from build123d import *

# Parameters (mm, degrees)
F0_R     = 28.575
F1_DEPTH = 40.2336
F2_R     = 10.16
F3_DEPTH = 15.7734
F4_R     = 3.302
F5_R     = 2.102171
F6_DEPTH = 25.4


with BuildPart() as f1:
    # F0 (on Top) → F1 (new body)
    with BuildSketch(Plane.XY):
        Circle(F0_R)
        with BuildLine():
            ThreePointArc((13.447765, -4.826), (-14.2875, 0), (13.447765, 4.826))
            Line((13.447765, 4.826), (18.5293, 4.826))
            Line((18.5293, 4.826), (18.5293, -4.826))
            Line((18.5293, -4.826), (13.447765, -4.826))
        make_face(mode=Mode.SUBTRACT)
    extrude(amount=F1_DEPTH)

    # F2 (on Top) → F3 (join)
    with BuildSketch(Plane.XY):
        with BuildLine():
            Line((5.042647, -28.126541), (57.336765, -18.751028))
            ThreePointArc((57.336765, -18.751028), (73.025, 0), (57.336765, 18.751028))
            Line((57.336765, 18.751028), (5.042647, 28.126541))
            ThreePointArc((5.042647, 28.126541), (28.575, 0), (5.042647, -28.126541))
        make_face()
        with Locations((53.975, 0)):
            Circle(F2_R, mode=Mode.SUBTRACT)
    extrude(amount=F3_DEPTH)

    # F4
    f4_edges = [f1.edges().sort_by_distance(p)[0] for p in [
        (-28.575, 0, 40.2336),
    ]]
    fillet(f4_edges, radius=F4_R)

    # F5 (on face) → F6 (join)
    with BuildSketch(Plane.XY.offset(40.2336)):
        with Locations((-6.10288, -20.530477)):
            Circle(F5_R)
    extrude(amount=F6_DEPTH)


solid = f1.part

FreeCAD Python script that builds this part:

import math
import FreeCAD as App
import Part
import Sketcher
Q = App.Units.Quantity


def edges_at(feature, points):
    """Names of the edges that pass closest to the given points."""
    edges = feature.Shape.Edges
    near = lambda p: min(range(len(edges)), key=lambda i: edges[i].distToShape(Part.Vertex(*p))[0])
    return sorted({f"Edge{near(p) + 1}" for p in points})

doc = App.newDocument("Part")
body = doc.addObject("PartDesign::Body", "Body")

# Sketch on XY plane
sketch1 = doc.addObject("Sketcher::SketchObject", "Sketch")
body.addObject(sketch1)
sketch1.AttachmentSupport = (doc.XY_Plane, [""])
sketch1.MapMode = "FlatFace"
sketch1.addGeometry(Part.Circle(App.Vector(0, 0, 0), App.Vector(0, 0, 1), 28.575), False)
sketch1.addGeometry(Part.LineSegment(App.Vector(18.5293, -4.826, 0), App.Vector(13.447765, -4.826, 0)), False)
sketch1.addGeometry(Part.ArcOfCircle(Part.Circle(App.Vector(0, 0, 0), App.Vector(0, 0, 1), 14.2875), math.radians(19.741542), math.radians(340.258458)), False)
sketch1.addGeometry(Part.LineSegment(App.Vector(13.447765, 4.826, 0), App.Vector(18.5293, 4.826, 0)), False)
sketch1.addGeometry(Part.LineSegment(App.Vector(18.5293, 4.826, 0), App.Vector(18.5293, -4.826, 0)), False)
sketch1.addConstraint(Sketcher.Constraint("Coincident", 1, 2, 2, 2))
sketch1.addConstraint(Sketcher.Constraint("Coincident", 2, 1, 3, 1))
sketch1.addConstraint(Sketcher.Constraint("Coincident", 3, 2, 4, 1))
sketch1.addConstraint(Sketcher.Constraint("Coincident", 4, 2, 1, 1))
sketch1.addConstraint(Sketcher.Constraint("Horizontal", 1))
sketch1.addConstraint(Sketcher.Constraint("Horizontal", 3))
sketch1.addConstraint(Sketcher.Constraint("Vertical", 4))
sketch1.addConstraint(Sketcher.Constraint("Coincident", 0, 3, -1, 1))
sketch1.addConstraint(Sketcher.Constraint("Coincident", 2, 3, -1, 1))
sketch1.addConstraint(Sketcher.Constraint("Vertical", 1, 2, 2, 1))
sketch1.addConstraint(Sketcher.Constraint("Diameter", 0, Q("2.25 in")))
sketch1.addConstraint(Sketcher.Constraint("Radius", 2, Q("0.5625 in")))
sketch1.addConstraint(Sketcher.Constraint("DistanceY", 4, 2, 4, 1, Q("0.38 in")))
sketch1.addConstraint(Sketcher.Constraint("DistanceX", -1, 1, 3, 2, Q("0.7295 in")))
pad1 = doc.addObject("PartDesign::Pad", "Pad")
body.addObject(pad1)
pad1.Profile = sketch1
pad1.Length = Q("1.584 in")

# Sketch on XY plane
sketch2 = doc.addObject("Sketcher::SketchObject", "Sketch001")
body.addObject(sketch2)
sketch2.AttachmentSupport = (doc.XY_Plane, [""])
sketch2.MapMode = "FlatFace"
sketch2.addGeometry(Part.LineSegment(App.Vector(5.042647, -28.126541, 0), App.Vector(57.336765, -18.751028, 0)), False)
sketch2.addGeometry(Part.ArcOfCircle(Part.Circle(App.Vector(53.975, 0, 0), App.Vector(0, 0, 1), 19.05), math.radians(-79.835749), math.radians(79.835749)), False)
sketch2.addGeometry(Part.LineSegment(App.Vector(57.336765, 18.751028, 0), App.Vector(5.042647, 28.126541, 0)), False)
sketch2.addGeometry(Part.ArcOfCircle(Part.Circle(App.Vector(0.000001, 0, 0), App.Vector(0, 0, 1), 28.574999), math.radians(-79.835752), math.radians(79.835752)), False)
sketch2.addGeometry(Part.Circle(App.Vector(53.975, 0, 0), App.Vector(0, 0, 1), 10.16), False)
sketch2.addConstraint(Sketcher.Constraint("Tangent", 0, 2, 1, 1))
sketch2.addConstraint(Sketcher.Constraint("Tangent", 1, 2, 2, 1))
sketch2.addConstraint(Sketcher.Constraint("Tangent", 2, 2, 3, 2))
sketch2.addConstraint(Sketcher.Constraint("Tangent", 3, 1, 0, 1))
sketch2.addConstraint(Sketcher.Constraint("Coincident", 3, 3, -1, 1))
sketch2.addConstraint(Sketcher.Constraint("Coincident", 4, 3, 1, 3))
sketch2.addConstraint(Sketcher.Constraint("PointOnObject", 1, 3, -1))
sketch2.addConstraint(Sketcher.Constraint("Diameter", 4, Q("0.8 in")))
sketch2.addConstraint(Sketcher.Constraint("Radius", 1, Q("0.75 in")))
sketch2.addConstraint(Sketcher.Constraint("Radius", 3, Q("1.125 in")))
sketch2.addConstraint(Sketcher.Constraint("DistanceX", -1, 1, 1, 3, Q("2.125 in")))
pad2 = doc.addObject("PartDesign::Pad", "Pad001")
body.addObject(pad2)
pad2.Profile = sketch2
pad2.Length = Q("0.621 in")
doc.recompute()

fillet = doc.addObject("PartDesign::Fillet", "Fillet")
body.addObject(fillet)
fillet.Base = (pad2, edges_at(pad2, [(-28.575, 0, 40.234)]))
fillet.Radius = Q("0.13 in")

# Sketch on XY plane
sketch3 = doc.addObject("Sketcher::SketchObject", "Sketch002")
body.addObject(sketch3)
sketch3.AttachmentSupport = (doc.XY_Plane, [""])
sketch3.MapMode = "FlatFace"
sketch3.AttachmentOffset = App.Placement(App.Vector(0, 0, 1.584 * 25.4), App.Rotation())
sketch3.addGeometry(Part.Circle(App.Vector(-6.10288, -20.530477, 0), App.Vector(0, 0, 1), 2.102171), False)
sketch3.addConstraint(Sketcher.Constraint("Diameter", 0, Q("4.204342 mm")))
sketch3.addConstraint(Sketcher.Constraint("DistanceX", 0, 3, -1, 1, Q("6.10288 mm")))
sketch3.addConstraint(Sketcher.Constraint("DistanceY", 0, 3, -1, 1, Q("20.530477 mm")))
pad3 = doc.addObject("PartDesign::Pad", "Pad002")
body.addObject(pad3)
pad3.Profile = sketch3
pad3.Length = Q("1 in")

doc.recompute()
